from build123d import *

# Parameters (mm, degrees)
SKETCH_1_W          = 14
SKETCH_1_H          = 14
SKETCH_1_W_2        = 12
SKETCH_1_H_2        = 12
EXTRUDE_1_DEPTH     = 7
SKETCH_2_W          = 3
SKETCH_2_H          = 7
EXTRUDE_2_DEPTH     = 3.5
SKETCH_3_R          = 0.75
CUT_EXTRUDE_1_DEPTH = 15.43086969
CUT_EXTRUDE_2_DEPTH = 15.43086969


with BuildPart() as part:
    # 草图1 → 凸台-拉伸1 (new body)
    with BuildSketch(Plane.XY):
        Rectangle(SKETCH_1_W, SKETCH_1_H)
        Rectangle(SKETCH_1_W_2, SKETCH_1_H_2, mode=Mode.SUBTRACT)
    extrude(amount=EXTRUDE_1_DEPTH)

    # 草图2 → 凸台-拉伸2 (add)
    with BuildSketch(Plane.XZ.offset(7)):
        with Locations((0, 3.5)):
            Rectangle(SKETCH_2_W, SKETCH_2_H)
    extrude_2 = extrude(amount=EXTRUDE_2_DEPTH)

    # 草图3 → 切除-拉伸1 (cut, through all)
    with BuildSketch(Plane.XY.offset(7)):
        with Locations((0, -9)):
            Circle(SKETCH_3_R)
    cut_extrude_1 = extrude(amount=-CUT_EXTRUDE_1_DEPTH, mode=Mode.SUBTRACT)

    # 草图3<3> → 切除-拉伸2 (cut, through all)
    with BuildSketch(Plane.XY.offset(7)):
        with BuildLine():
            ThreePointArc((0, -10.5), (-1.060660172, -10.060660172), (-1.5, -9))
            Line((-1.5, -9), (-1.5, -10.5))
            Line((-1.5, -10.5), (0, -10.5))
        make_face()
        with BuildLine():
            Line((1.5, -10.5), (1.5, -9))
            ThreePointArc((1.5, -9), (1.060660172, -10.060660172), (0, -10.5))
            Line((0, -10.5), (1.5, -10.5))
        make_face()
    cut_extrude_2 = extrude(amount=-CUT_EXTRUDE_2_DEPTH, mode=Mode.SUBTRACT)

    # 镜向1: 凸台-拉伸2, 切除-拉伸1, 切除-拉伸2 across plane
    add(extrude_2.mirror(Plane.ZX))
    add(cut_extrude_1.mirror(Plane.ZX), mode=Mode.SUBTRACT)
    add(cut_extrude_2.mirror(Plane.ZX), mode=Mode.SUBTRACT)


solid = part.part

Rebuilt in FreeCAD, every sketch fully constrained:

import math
import FreeCAD as App
import Part
import Sketcher
from FreeCAD import Vector
Q = App.Units.Quantity

doc = App.newDocument("Part")
params = doc.addObject("Spreadsheet::Sheet", "Params")
for row, (alias, value) in enumerate([
    ("sketch1_width", "14 mm"),
    ("sketch1_width2", "12 mm"),
    ("pad1_length", "7 mm"),
    ("sketch2_width", "3 mm"),
    ("sketch2_height", "7 mm"),
    ("pad2_length", "3.5 mm"),
    ("sketch3_diameter", "1.5 mm"),
    ("sketch4_radius", "1.5 mm"),
], start=1):
    params.set(f"A{row}", alias)
    params.set(f"B{row}", "=" + value)
    params.setAlias(f"B{row}", alias)

body = doc.addObject("PartDesign::Body", "Body")

# Sketch on XY plane
sketch1 = body.newObject("Sketcher::SketchObject", "Sketch")
sketch1.AttachmentSupport = (doc.getObject("XY_Plane"), [""])
sketch1.MapMode = "FlatFace"
sketch1.addGeometry(Part.LineSegment(Vector(-7, 7, 0), Vector(-7, -7, 0)), False)
sketch1.addGeometry(Part.LineSegment(Vector(-7, -7, 0), Vector(7, -7, 0)), False)
sketch1.addGeometry(Part.LineSegment(Vector(7, -7, 0), Vector(7, 7, 0)), False)
sketch1.addGeometry(Part.LineSegment(Vector(7, 7, 0), Vector(-7, 7, 0)), False)
sketch1.addGeometry(Part.LineSegment(Vector(6, -6, 0), Vector(-6, -6, 0)), False)
sketch1.addGeometry(Part.LineSegment(Vector(-6, -6, 0), Vector(-6, 6, 0)), False)
sketch1.addGeometry(Part.LineSegment(Vector(-6, 6, 0), Vector(6, 6, 0)), False)
sketch1.addGeometry(Part.LineSegment(Vector(6, 6, 0), Vector(6, -6, 0)), False)
sketch1.addConstraint(Sketcher.Constraint("Coincident", 0, 2, 1, 1))
sketch1.addConstraint(Sketcher.Constraint("Coincident", 1, 2, 2, 1))
sketch1.addConstraint(Sketcher.Constraint("Coincident", 2, 2, 3, 1))
sketch1.addConstraint(Sketcher.Constraint("Coincident", 3, 2, 0, 1))
sketch1.addConstraint(Sketcher.Constraint("Coincident", 4, 2, 5, 1))
sketch1.addConstraint(Sketcher.Constraint("Coincident", 5, 2, 6, 1))
sketch1.addConstraint(Sketcher.Constraint("Coincident", 6, 2, 7, 1))
sketch1.addConstraint(Sketcher.Constraint("Coincident", 7, 2, 4, 1))
sketch1.addConstraint(Sketcher.Constraint("Vertical", 0))
sketch1.addConstraint(Sketcher.Constraint("Horizontal", 1))
sketch1.addConstraint(Sketcher.Constraint("Vertical", 2))
sketch1.addConstraint(Sketcher.Constraint("Horizontal", 3))
sketch1.addConstraint(Sketcher.Constraint("Horizontal", 4))
sketch1.addConstraint(Sketcher.Constraint("Vertical", 5))
sketch1.addConstraint(Sketcher.Constraint("Horizontal", 6))
sketch1.addConstraint(Sketcher.Constraint("Vertical", 7))
sketch1.addConstraint(Sketcher.Constraint("Symmetric", 0, 2, 2, 2, -1, 1))
sketch1.addConstraint(Sketcher.Constraint("Symmetric", 4, 2, 6, 2, -1, 1))
sketch1.addConstraint(Sketcher.Constraint("Equal", 3, 0))
sketch1.addConstraint(Sketcher.Constraint("Equal", 6, 5))
sketch1.addConstraint(Sketcher.Constraint("DistanceX", 1, 1, 1, 2, Q("14 mm")))
sketch1.addConstraint(Sketcher.Constraint("DistanceX", 4, 2, 4, 1, Q("12 mm")))
sketch1.setExpression("Constraints[20]", "Params.sketch1_width")
sketch1.setExpression("Constraints[21]", "Params.sketch1_width2")
pad1 = body.newObject("PartDesign::Pad", "Pad")
pad1.Profile = sketch1
pad1.setExpression("Length", "Params.pad1_length")

# Sketch on XZ plane
sketch2 = body.newObject("Sketcher::SketchObject", "Sketch001")
sketch2.AttachmentSupport = (doc.getObject("XZ_Plane"), [""])
sketch2.MapMode = "FlatFace"
sketch2.AttachmentOffset = App.Placement(Vector(0, 0, 7), App.Rotation())
sketch2.addGeometry(Part.LineSegment(Vector(-1.5, 7, 0), Vector(-1.5, 0, 0)), False)
sketch2.addGeometry(Part.LineSegment(Vector(-1.5, 0, 0), Vector(1.5, 0, 0)), False)
sketch2.addGeometry(Part.LineSegment(Vector(1.5, 0, 0), Vector(1.5, 7, 0)), False)
sketch2.addGeometry(Part.LineSegment(Vector(1.5, 7, 0), Vector(-1.5, 7, 0)), False)
sketch2.addConstraint(Sketcher.Constraint("Coincident", 0, 2, 1, 1))
sketch2.addConstraint(Sketcher.Constraint("Coincident", 1, 2, 2, 1))
sketch2.addConstraint(Sketcher.Constraint("Coincident", 2, 2, 3, 1))
sketch2.addConstraint(Sketcher.Constraint("Coincident", 3, 2, 0, 1))
sketch2.addConstraint(Sketcher.Constraint("Vertical", 0))
sketch2.addConstraint(Sketcher.Constraint("Horizontal", 1))
sketch2.addConstraint(Sketcher.Constraint("Vertical", 2))
sketch2.addConstraint(Sketcher.Constraint("Horizontal", 3))
sketch2.addConstraint(Sketcher.Constraint("Symmetric", 0, 2, 1, 2, -1, 1))
sketch2.addConstraint(Sketcher.Constraint("DistanceX", 1, 1, 1, 2, Q("3 mm")))
sketch2.addConstraint(Sketcher.Constraint("DistanceY", 0, 2, 0, 1, Q("7 mm")))
sketch2.setExpression("Constraints[9]", "Params.sketch2_width")
sketch2.setExpression("Constraints[10]", "Params.sketch2_height")
pad2 = body.newObject("PartDesign::Pad", "Pad001")
pad2.Profile = sketch2
pad2.setExpression("Length", "Params.pad2_length")

# Sketch on XY plane
sketch3 = body.newObject("Sketcher::SketchObject", "Sketch002")
sketch3.AttachmentSupport = (doc.getObject("XY_Plane"), [""])
sketch3.MapMode = "FlatFace"
sketch3.AttachmentOffset = App.Placement(Vector(0, 0, 7), App.Rotation())
sketch3.addGeometry(Part.Circle(Vector(0, -9, 0), Vector(0, 0, 1), 0.8), False)
sketch3.addConstraint(Sketcher.Constraint("PointOnObject", 0, 3, -2))
sketch3.addConstraint(Sketcher.Constraint("Diameter", 0, Q("1.5 mm")))
sketch3.addConstraint(Sketcher.Constraint("DistanceY", 0, 3, -1, 1, Q("9 mm")))
sketch3.setExpression("Constraints[1]", "Params.sketch3_diameter")
pocket1 = body.newObject("PartDesign::Pocket", "Pocket")
pocket1.Profile = sketch3
pocket1.Type = "ThroughAll"

# Sketch on XY plane
sketch4 = body.newObject("Sketcher::SketchObject", "Sketch003")
sketch4.AttachmentSupport = (doc.getObject("XY_Plane"), [""])
sketch4.MapMode = "FlatFace"
sketch4.AttachmentOffset = App.Placement(Vector(0, 0, 7), App.Rotation())
sketch4.addGeometry(Part.ArcOfCircle(Part.Circle(Vector(0, -9, 0), Vector(0, 0, 1), 1.5), math.radians(180), math.radians(270)), False)
sketch4.addGeometry(Part.LineSegment(Vector(-1.5, -9, 0), Vector(-1.5, -10.5, 0)), False)
sketch4.addGeometry(Part.LineSegment(Vector(-1.5, -10.5, 0), Vector(0, -10.5, 0)), False)
sketch4.addGeometry(Part.LineSegment(Vector(1.5, -10.5, 0), Vector(1.5, -9, 0)), False)
sketch4.addGeometry(Part.ArcOfCircle(Part.Circle(Vector(0, -9, 0), Vector(0, 0, 1), 1.5), math.radians(-90), math.radians(0)), False)
sketch4.addGeometry(Part.LineSegment(Vector(0, -10.5, 0), Vector(1.5, -10.5, 0)), False)
sketch4.addConstraint(Sketcher.Constraint("Tangent", 0, 1, 1, 1))
sketch4.addConstraint(Sketcher.Constraint("Coincident", 1, 2, 2, 1))
sketch4.addConstraint(Sketcher.Constraint("Tangent", 2, 2, 0, 2))
sketch4.addConstraint(Sketcher.Constraint("Tangent", 3, 2, 4, 2))
sketch4.addConstraint(Sketcher.Constraint("Tangent", 4, 1, 5, 1))
sketch4.addConstraint(Sketcher.Constraint("Coincident", 5, 2, 3, 1))
sketch4.addConstraint(Sketcher.Constraint("Vertical", 1))
sketch4.addConstraint(Sketcher.Constraint("Horizontal", 2))
sketch4.addConstraint(Sketcher.Constraint("Vertical", 3))
sketch4.addConstraint(Sketcher.Constraint("Horizontal", 5))
sketch4.addConstraint(Sketcher.Constraint("Coincident", 4, 3, 0, 3))
sketch4.addConstraint(Sketcher.Constraint("Equal", 0, 4))
sketch4.addConstraint(Sketcher.Constraint("PointOnObject", 0, 3, -2))
sketch4.addConstraint(Sketcher.Constraint("Radius", 0, Q("1.5 mm")))
sketch4.addConstraint(Sketcher.Constraint("DistanceY", 0, 3, -1, 1, Q("9 mm")))
sketch4.setExpression("Constraints[13]", "Params.sketch4_radius")
pocket2 = body.newObject("PartDesign::Pocket", "Pocket001")
pocket2.Profile = sketch4
pocket2.Type = "ThroughAll"
doc.recompute()

mirrored = body.newObject("PartDesign::Mirrored", "Mirrored")
mirrored.Originals = [pad2, pocket1, pocket2]
mirrored.MirrorPlane = (doc.getObject("XZ_Plane"), [""])
body.Tip = mirrored

doc.recompute()
